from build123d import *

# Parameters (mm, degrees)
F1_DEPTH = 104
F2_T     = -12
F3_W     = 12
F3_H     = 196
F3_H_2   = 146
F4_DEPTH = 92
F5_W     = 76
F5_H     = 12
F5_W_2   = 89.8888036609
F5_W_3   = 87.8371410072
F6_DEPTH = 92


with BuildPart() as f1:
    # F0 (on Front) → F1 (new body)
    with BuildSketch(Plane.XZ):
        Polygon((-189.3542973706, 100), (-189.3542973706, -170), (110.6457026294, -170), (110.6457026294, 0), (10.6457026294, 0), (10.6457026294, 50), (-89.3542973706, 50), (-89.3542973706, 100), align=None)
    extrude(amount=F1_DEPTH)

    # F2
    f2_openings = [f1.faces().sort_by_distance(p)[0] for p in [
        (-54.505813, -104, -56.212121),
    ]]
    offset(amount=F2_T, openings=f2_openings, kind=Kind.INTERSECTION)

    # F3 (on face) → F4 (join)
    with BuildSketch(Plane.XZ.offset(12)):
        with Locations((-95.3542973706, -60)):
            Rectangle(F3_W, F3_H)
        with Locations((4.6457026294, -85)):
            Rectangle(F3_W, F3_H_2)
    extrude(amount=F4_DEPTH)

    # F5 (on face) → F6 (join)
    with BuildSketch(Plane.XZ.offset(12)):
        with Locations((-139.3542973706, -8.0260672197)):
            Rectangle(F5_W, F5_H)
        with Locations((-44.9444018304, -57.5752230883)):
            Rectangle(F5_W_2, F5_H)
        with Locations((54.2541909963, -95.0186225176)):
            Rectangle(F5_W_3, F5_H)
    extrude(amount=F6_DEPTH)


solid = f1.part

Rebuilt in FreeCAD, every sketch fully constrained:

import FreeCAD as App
import Part
import Sketcher
Q = App.Units.Quantity


def faces_at(feature, points):
    """Names of the faces that lie closest to the given points."""
    faces = feature.Shape.Faces
    near = lambda p: min(range(len(faces)), key=lambda i: faces[i].distToShape(Part.Vertex(*p))[0])
    return sorted({f"Face{near(p) + 1}" for p in points})

doc = App.newDocument("Part")
body = doc.addObject("PartDesign::Body", "Body")

sketch1 = doc.addObject("Sketcher::SketchObject", "Sketch")
body.addObject(sketch1)
sketch1.AttachmentSupport = (doc.XZ_Plane, [""])
sketch1.MapMode = "FlatFace"
sketch1.addGeometry([
    Part.LineSegment(App.Vector(-189.354297, 100, 0), App.Vector(-189.354297, -170, 0)),
    Part.LineSegment(App.Vector(-189.354297, -170, 0), App.Vector(110.645703, -170, 0)),
    Part.LineSegment(App.Vector(110.645703, -170, 0), App.Vector(110.645703, 0, 0)),
    Part.LineSegment(App.Vector(110.645703, 0, 0), App.Vector(10.645703, 0, 0)),
    Part.LineSegment(App.Vector(10.645703, 0, 0), App.Vector(10.645703, 50, 0)),
    Part.LineSegment(App.Vector(10.645703, 50, 0), App.Vector(-89.354297, 50, 0)),
    Part.LineSegment(App.Vector(-89.354297, 50, 0), App.Vector(-89.354297, 100, 0)),
    Part.LineSegment(App.Vector(-89.354297, 100, 0), App.Vector(-189.354297, 100, 0)),
], False)
sketch1.addConstraint([
    Sketcher.Constraint("Coincident", 0, 2, 1, 1),
    Sketcher.Constraint("Coincident", 1, 2, 2, 1),
    Sketcher.Constraint("Coincident", 2, 2, 3, 1),
    Sketcher.Constraint("Coincident", 3, 2, 4, 1),
    Sketcher.Constraint("Coincident", 4, 2, 5, 1),
    Sketcher.Constraint("Coincident", 5, 2, 6, 1),
    Sketcher.Constraint("Coincident", 6, 2, 7, 1),
    Sketcher.Constraint("Coincident", 7, 2, 0, 1),
    Sketcher.Constraint("Vertical", 0),
    Sketcher.Constraint("Horizontal", 1),
    Sketcher.Constraint("Vertical", 2),
    Sketcher.Constraint("Horizontal", 3),
    Sketcher.Constraint("Vertical", 4),
    Sketcher.Constraint("Horizontal", 5),
    Sketcher.Constraint("Vertical", 6),
    Sketcher.Constraint("Horizontal", 7),
    Sketcher.Constraint("PointOnObject", 2, 2, -1),
    Sketcher.Constraint("Equal", 3, 5),
    Sketcher.Constraint("Equal", 5, 7),
    Sketcher.Constraint("Equal", 4, 6),
    Sketcher.Constraint("DistanceX", 1, 1, 1, 2, Q("300 mm")),
    Sketcher.Constraint("DistanceY", 0, 2, 0, 1, Q("270 mm")),
    Sketcher.Constraint("DistanceY", 2, 1, 2, 2, Q("170 mm")),
    Sketcher.Constraint("DistanceX", 0, 2, -1, 1, Q("189.354297 mm")),
])
pad1 = doc.addObject("PartDesign::Pad", "Pad")
body.addObject(pad1)
pad1.Profile = sketch1
pad1.Length = 104
doc.recompute()

thickness = doc.addObject("PartDesign::Thickness", "Thickness")
body.addObject(thickness)
thickness.Base = (pad1, faces_at(pad1, [(-39.354, -104, -35)]))
thickness.Value = 12
thickness.Reversed = True
thickness.Join = "Intersection"

sketch2 = doc.addObject("Sketcher::SketchObject", "Sketch001")
body.addObject(sketch2)
sketch2.AttachmentSupport = (doc.XZ_Plane, [""])
sketch2.MapMode = "FlatFace"
sketch2.AttachmentOffset = App.Placement(App.Vector(0, 0, 12), App.Rotation())
sketch2.addGeometry([
    Part.LineSegment(App.Vector(-101.354297, 38, 0), App.Vector(-101.354297, -158, 0)),
    Part.LineSegment(App.Vector(-101.354297, -158, 0), App.Vector(-89.354297, -158, 0)),
    Part.LineSegment(App.Vector(-89.354297, -158, 0), App.Vector(-89.354297, 38, 0)),
    Part.LineSegment(App.Vector(-89.354297, 38, 0), App.Vector(-101.354297, 38, 0)),
    Part.LineSegment(App.Vector(-1.354297, -12, 0), App.Vector(-1.354297, -158, 0)),
    Part.LineSegment(App.Vector(-1.354297, -158, 0), App.Vector(10.645703, -158, 0)),
    Part.LineSegment(App.Vector(10.645703, -158, 0), App.Vector(10.645703, -12, 0)),
    Part.LineSegment(App.Vector(10.645703, -12, 0), App.Vector(-1.354297, -12, 0)),
], False)
sketch2.addConstraint([
    Sketcher.Constraint("Coincident", 0, 2, 1, 1),
    Sketcher.Constraint("Coincident", 1, 2, 2, 1),
    Sketcher.Constraint("Coincident", 2, 2, 3, 1),
    Sketcher.Constraint("Coincident", 3, 2, 0, 1),
    Sketcher.Constraint("Coincident", 4, 2, 5, 1),
    Sketcher.Constraint("Coincident", 5, 2, 6, 1),
    Sketcher.Constraint("Coincident", 6, 2, 7, 1),
    Sketcher.Constraint("Coincident", 7, 2, 4, 1),
    Sketcher.Constraint("Vertical", 0),
    Sketcher.Constraint("Horizontal", 1),
    Sketcher.Constraint("Vertical", 2),
    Sketcher.Constraint("Horizontal", 3),
    Sketcher.Constraint("Vertical", 4),
    Sketcher.Constraint("Horizontal", 5),
    Sketcher.Constraint("Vertical", 6),
    Sketcher.Constraint("Horizontal", 7),
    Sketcher.Constraint("Horizontal", 1, 2, 4, 2),
    Sketcher.Constraint("Equal", 3, 5),
    Sketcher.Constraint("DistanceX", 1, 1, 1, 2, Q("12 mm")),
    Sketcher.Constraint("DistanceY", 0, 2, 0, 1, Q("196 mm")),
    Sketcher.Constraint("DistanceY", 4, 2, 4, 1, Q("146 mm")),
    Sketcher.Constraint("DistanceY", 0, 2, -1, 1, Q("158 mm")),
    Sketcher.Constraint("DistanceX", 1, 2, 4, 2, Q("88 mm")),
    Sketcher.Constraint("DistanceX", 0, 2, -1, 1, Q("101.354297 mm")),
])
pad2 = doc.addObject("PartDesign::Pad", "Pad001")
body.addObject(pad2)
pad2.Profile = sketch2
pad2.Length = 92

sketch3 = doc.addObject("Sketcher::SketchObject", "Sketch002")
body.addObject(sketch3)
sketch3.AttachmentSupport = (doc.XZ_Plane, [""])
sketch3.MapMode = "FlatFace"
sketch3.AttachmentOffset = App.Placement(App.Vector(0, 0, 12), App.Rotation())
sketch3.addGeometry([
    Part.LineSegment(App.Vector(-177.354297, -2.026067, 0), App.Vector(-177.354297, -14.026067, 0)),
    Part.LineSegment(App.Vector(-177.354297, -14.026067, 0), App.Vector(-101.354297, -14.026067, 0)),
    Part.LineSegment(App.Vector(-101.354297, -14.026067, 0), App.Vector(-101.354297, -2.026067, 0)),
    Part.LineSegment(App.Vector(-101.354297, -2.026067, 0), App.Vector(-177.354297, -2.026067, 0)),
    Part.LineSegment(App.Vector(-89.888804, -51.575223, 0), App.Vector(-89.888804, -63.575223, 0)),
    Part.LineSegment(App.Vector(-89.888804, -63.575223, 0), App.Vector(0, -63.575223, 0)),
    Part.LineSegment(App.Vector(0, -63.575223, 0), App.Vector(0, -51.575223, 0)),
    Part.LineSegment(App.Vector(0, -51.575223, 0), App.Vector(-89.888804, -51.575223, 0)),
    Part.LineSegment(App.Vector(10.33562, -89.018623, 0), App.Vector(10.33562, -101.018623, 0)),
    Part.LineSegment(App.Vector(10.33562, -101.018623, 0), App.Vector(98.172761, -101.018623, 0)),
    Part.LineSegment(App.Vector(98.172761, -101.018623, 0), App.Vector(98.172761, -89.018623, 0)),
    Part.LineSegment(App.Vector(98.172761, -89.018623, 0), App.Vector(10.33562, -89.018623, 0)),
], False)
sketch3.addConstraint([
    Sketcher.Constraint("Coincident", 0, 2, 1, 1),
    Sketcher.Constraint("Coincident", 1, 2, 2, 1),
    Sketcher.Constraint("Coincident", 2, 2, 3, 1),
    Sketcher.Constraint("Coincident", 3, 2, 0, 1),
    Sketcher.Constraint("Coincident", 4, 2, 5, 1),
    Sketcher.Constraint("Coincident", 5, 2, 6, 1),
    Sketcher.Constraint("Coincident", 6, 2, 7, 1),
    Sketcher.Constraint("Coincident", 7, 2, 4, 1),
    Sketcher.Constraint("Coincident", 8, 2, 9, 1),
    Sketcher.Constraint("Coincident", 9, 2, 10, 1),
    Sketcher.Constraint("Coincident", 10, 2, 11, 1),
    Sketcher.Constraint("Coincident", 11, 2, 8, 1),
    Sketcher.Constraint("Vertical", 0),
    Sketcher.Constraint("Horizontal", 1),
    Sketcher.Constraint("Vertical", 2),
    Sketcher.Constraint("Horizontal", 3),
    Sketcher.Constraint("Vertical", 4),
    Sketcher.Constraint("Horizontal", 5),
    Sketcher.Constraint("Vertical", 6),
    Sketcher.Constraint("Horizontal", 7),
    Sketcher.Constraint("Vertical", 8),
    Sketcher.Constraint("Horizontal", 9),
    Sketcher.Constraint("Vertical", 10),
    Sketcher.Constraint("Horizontal", 11),
    Sketcher.Constraint("PointOnObject", 5, 2, -2),
    Sketcher.Constraint("Equal", 2, 4),
    Sketcher.Constraint("Equal", 6, 8),
    Sketcher.Constraint("DistanceX", 1, 1, 1, 2, Q("76 mm")),
    Sketcher.Constraint("DistanceY", 0, 2, 0, 1, Q("12 mm")),
    Sketcher.Constraint("DistanceX", 9, 1, 9, 2, Q("87.837141 mm")),
    Sketcher.Constraint("DistanceY", 8, 2, 5, 2, Q("37.443399 mm")),
    Sketcher.Constraint("DistanceX", 5, 1, 5, 2, Q("89.888804 mm")),
    Sketcher.Constraint("DistanceX", -1, 1, 8, 2, Q("10.33562 mm")),
    Sketcher.Constraint("DistanceX", 0, 2, -1, 1, Q("177.354297 mm")),
    Sketcher.Constraint("DistanceY", 0, 2, -1, 1, Q("14.026067 mm")),
    Sketcher.Constraint("DistanceY", 4, 2, -1, 1, Q("63.575223 mm")),
])
pad3 = doc.addObject("PartDesign::Pad", "Pad002")
body.addObject(pad3)
pad3.Profile = sketch3
pad3.Length = 92

doc.recompute()
